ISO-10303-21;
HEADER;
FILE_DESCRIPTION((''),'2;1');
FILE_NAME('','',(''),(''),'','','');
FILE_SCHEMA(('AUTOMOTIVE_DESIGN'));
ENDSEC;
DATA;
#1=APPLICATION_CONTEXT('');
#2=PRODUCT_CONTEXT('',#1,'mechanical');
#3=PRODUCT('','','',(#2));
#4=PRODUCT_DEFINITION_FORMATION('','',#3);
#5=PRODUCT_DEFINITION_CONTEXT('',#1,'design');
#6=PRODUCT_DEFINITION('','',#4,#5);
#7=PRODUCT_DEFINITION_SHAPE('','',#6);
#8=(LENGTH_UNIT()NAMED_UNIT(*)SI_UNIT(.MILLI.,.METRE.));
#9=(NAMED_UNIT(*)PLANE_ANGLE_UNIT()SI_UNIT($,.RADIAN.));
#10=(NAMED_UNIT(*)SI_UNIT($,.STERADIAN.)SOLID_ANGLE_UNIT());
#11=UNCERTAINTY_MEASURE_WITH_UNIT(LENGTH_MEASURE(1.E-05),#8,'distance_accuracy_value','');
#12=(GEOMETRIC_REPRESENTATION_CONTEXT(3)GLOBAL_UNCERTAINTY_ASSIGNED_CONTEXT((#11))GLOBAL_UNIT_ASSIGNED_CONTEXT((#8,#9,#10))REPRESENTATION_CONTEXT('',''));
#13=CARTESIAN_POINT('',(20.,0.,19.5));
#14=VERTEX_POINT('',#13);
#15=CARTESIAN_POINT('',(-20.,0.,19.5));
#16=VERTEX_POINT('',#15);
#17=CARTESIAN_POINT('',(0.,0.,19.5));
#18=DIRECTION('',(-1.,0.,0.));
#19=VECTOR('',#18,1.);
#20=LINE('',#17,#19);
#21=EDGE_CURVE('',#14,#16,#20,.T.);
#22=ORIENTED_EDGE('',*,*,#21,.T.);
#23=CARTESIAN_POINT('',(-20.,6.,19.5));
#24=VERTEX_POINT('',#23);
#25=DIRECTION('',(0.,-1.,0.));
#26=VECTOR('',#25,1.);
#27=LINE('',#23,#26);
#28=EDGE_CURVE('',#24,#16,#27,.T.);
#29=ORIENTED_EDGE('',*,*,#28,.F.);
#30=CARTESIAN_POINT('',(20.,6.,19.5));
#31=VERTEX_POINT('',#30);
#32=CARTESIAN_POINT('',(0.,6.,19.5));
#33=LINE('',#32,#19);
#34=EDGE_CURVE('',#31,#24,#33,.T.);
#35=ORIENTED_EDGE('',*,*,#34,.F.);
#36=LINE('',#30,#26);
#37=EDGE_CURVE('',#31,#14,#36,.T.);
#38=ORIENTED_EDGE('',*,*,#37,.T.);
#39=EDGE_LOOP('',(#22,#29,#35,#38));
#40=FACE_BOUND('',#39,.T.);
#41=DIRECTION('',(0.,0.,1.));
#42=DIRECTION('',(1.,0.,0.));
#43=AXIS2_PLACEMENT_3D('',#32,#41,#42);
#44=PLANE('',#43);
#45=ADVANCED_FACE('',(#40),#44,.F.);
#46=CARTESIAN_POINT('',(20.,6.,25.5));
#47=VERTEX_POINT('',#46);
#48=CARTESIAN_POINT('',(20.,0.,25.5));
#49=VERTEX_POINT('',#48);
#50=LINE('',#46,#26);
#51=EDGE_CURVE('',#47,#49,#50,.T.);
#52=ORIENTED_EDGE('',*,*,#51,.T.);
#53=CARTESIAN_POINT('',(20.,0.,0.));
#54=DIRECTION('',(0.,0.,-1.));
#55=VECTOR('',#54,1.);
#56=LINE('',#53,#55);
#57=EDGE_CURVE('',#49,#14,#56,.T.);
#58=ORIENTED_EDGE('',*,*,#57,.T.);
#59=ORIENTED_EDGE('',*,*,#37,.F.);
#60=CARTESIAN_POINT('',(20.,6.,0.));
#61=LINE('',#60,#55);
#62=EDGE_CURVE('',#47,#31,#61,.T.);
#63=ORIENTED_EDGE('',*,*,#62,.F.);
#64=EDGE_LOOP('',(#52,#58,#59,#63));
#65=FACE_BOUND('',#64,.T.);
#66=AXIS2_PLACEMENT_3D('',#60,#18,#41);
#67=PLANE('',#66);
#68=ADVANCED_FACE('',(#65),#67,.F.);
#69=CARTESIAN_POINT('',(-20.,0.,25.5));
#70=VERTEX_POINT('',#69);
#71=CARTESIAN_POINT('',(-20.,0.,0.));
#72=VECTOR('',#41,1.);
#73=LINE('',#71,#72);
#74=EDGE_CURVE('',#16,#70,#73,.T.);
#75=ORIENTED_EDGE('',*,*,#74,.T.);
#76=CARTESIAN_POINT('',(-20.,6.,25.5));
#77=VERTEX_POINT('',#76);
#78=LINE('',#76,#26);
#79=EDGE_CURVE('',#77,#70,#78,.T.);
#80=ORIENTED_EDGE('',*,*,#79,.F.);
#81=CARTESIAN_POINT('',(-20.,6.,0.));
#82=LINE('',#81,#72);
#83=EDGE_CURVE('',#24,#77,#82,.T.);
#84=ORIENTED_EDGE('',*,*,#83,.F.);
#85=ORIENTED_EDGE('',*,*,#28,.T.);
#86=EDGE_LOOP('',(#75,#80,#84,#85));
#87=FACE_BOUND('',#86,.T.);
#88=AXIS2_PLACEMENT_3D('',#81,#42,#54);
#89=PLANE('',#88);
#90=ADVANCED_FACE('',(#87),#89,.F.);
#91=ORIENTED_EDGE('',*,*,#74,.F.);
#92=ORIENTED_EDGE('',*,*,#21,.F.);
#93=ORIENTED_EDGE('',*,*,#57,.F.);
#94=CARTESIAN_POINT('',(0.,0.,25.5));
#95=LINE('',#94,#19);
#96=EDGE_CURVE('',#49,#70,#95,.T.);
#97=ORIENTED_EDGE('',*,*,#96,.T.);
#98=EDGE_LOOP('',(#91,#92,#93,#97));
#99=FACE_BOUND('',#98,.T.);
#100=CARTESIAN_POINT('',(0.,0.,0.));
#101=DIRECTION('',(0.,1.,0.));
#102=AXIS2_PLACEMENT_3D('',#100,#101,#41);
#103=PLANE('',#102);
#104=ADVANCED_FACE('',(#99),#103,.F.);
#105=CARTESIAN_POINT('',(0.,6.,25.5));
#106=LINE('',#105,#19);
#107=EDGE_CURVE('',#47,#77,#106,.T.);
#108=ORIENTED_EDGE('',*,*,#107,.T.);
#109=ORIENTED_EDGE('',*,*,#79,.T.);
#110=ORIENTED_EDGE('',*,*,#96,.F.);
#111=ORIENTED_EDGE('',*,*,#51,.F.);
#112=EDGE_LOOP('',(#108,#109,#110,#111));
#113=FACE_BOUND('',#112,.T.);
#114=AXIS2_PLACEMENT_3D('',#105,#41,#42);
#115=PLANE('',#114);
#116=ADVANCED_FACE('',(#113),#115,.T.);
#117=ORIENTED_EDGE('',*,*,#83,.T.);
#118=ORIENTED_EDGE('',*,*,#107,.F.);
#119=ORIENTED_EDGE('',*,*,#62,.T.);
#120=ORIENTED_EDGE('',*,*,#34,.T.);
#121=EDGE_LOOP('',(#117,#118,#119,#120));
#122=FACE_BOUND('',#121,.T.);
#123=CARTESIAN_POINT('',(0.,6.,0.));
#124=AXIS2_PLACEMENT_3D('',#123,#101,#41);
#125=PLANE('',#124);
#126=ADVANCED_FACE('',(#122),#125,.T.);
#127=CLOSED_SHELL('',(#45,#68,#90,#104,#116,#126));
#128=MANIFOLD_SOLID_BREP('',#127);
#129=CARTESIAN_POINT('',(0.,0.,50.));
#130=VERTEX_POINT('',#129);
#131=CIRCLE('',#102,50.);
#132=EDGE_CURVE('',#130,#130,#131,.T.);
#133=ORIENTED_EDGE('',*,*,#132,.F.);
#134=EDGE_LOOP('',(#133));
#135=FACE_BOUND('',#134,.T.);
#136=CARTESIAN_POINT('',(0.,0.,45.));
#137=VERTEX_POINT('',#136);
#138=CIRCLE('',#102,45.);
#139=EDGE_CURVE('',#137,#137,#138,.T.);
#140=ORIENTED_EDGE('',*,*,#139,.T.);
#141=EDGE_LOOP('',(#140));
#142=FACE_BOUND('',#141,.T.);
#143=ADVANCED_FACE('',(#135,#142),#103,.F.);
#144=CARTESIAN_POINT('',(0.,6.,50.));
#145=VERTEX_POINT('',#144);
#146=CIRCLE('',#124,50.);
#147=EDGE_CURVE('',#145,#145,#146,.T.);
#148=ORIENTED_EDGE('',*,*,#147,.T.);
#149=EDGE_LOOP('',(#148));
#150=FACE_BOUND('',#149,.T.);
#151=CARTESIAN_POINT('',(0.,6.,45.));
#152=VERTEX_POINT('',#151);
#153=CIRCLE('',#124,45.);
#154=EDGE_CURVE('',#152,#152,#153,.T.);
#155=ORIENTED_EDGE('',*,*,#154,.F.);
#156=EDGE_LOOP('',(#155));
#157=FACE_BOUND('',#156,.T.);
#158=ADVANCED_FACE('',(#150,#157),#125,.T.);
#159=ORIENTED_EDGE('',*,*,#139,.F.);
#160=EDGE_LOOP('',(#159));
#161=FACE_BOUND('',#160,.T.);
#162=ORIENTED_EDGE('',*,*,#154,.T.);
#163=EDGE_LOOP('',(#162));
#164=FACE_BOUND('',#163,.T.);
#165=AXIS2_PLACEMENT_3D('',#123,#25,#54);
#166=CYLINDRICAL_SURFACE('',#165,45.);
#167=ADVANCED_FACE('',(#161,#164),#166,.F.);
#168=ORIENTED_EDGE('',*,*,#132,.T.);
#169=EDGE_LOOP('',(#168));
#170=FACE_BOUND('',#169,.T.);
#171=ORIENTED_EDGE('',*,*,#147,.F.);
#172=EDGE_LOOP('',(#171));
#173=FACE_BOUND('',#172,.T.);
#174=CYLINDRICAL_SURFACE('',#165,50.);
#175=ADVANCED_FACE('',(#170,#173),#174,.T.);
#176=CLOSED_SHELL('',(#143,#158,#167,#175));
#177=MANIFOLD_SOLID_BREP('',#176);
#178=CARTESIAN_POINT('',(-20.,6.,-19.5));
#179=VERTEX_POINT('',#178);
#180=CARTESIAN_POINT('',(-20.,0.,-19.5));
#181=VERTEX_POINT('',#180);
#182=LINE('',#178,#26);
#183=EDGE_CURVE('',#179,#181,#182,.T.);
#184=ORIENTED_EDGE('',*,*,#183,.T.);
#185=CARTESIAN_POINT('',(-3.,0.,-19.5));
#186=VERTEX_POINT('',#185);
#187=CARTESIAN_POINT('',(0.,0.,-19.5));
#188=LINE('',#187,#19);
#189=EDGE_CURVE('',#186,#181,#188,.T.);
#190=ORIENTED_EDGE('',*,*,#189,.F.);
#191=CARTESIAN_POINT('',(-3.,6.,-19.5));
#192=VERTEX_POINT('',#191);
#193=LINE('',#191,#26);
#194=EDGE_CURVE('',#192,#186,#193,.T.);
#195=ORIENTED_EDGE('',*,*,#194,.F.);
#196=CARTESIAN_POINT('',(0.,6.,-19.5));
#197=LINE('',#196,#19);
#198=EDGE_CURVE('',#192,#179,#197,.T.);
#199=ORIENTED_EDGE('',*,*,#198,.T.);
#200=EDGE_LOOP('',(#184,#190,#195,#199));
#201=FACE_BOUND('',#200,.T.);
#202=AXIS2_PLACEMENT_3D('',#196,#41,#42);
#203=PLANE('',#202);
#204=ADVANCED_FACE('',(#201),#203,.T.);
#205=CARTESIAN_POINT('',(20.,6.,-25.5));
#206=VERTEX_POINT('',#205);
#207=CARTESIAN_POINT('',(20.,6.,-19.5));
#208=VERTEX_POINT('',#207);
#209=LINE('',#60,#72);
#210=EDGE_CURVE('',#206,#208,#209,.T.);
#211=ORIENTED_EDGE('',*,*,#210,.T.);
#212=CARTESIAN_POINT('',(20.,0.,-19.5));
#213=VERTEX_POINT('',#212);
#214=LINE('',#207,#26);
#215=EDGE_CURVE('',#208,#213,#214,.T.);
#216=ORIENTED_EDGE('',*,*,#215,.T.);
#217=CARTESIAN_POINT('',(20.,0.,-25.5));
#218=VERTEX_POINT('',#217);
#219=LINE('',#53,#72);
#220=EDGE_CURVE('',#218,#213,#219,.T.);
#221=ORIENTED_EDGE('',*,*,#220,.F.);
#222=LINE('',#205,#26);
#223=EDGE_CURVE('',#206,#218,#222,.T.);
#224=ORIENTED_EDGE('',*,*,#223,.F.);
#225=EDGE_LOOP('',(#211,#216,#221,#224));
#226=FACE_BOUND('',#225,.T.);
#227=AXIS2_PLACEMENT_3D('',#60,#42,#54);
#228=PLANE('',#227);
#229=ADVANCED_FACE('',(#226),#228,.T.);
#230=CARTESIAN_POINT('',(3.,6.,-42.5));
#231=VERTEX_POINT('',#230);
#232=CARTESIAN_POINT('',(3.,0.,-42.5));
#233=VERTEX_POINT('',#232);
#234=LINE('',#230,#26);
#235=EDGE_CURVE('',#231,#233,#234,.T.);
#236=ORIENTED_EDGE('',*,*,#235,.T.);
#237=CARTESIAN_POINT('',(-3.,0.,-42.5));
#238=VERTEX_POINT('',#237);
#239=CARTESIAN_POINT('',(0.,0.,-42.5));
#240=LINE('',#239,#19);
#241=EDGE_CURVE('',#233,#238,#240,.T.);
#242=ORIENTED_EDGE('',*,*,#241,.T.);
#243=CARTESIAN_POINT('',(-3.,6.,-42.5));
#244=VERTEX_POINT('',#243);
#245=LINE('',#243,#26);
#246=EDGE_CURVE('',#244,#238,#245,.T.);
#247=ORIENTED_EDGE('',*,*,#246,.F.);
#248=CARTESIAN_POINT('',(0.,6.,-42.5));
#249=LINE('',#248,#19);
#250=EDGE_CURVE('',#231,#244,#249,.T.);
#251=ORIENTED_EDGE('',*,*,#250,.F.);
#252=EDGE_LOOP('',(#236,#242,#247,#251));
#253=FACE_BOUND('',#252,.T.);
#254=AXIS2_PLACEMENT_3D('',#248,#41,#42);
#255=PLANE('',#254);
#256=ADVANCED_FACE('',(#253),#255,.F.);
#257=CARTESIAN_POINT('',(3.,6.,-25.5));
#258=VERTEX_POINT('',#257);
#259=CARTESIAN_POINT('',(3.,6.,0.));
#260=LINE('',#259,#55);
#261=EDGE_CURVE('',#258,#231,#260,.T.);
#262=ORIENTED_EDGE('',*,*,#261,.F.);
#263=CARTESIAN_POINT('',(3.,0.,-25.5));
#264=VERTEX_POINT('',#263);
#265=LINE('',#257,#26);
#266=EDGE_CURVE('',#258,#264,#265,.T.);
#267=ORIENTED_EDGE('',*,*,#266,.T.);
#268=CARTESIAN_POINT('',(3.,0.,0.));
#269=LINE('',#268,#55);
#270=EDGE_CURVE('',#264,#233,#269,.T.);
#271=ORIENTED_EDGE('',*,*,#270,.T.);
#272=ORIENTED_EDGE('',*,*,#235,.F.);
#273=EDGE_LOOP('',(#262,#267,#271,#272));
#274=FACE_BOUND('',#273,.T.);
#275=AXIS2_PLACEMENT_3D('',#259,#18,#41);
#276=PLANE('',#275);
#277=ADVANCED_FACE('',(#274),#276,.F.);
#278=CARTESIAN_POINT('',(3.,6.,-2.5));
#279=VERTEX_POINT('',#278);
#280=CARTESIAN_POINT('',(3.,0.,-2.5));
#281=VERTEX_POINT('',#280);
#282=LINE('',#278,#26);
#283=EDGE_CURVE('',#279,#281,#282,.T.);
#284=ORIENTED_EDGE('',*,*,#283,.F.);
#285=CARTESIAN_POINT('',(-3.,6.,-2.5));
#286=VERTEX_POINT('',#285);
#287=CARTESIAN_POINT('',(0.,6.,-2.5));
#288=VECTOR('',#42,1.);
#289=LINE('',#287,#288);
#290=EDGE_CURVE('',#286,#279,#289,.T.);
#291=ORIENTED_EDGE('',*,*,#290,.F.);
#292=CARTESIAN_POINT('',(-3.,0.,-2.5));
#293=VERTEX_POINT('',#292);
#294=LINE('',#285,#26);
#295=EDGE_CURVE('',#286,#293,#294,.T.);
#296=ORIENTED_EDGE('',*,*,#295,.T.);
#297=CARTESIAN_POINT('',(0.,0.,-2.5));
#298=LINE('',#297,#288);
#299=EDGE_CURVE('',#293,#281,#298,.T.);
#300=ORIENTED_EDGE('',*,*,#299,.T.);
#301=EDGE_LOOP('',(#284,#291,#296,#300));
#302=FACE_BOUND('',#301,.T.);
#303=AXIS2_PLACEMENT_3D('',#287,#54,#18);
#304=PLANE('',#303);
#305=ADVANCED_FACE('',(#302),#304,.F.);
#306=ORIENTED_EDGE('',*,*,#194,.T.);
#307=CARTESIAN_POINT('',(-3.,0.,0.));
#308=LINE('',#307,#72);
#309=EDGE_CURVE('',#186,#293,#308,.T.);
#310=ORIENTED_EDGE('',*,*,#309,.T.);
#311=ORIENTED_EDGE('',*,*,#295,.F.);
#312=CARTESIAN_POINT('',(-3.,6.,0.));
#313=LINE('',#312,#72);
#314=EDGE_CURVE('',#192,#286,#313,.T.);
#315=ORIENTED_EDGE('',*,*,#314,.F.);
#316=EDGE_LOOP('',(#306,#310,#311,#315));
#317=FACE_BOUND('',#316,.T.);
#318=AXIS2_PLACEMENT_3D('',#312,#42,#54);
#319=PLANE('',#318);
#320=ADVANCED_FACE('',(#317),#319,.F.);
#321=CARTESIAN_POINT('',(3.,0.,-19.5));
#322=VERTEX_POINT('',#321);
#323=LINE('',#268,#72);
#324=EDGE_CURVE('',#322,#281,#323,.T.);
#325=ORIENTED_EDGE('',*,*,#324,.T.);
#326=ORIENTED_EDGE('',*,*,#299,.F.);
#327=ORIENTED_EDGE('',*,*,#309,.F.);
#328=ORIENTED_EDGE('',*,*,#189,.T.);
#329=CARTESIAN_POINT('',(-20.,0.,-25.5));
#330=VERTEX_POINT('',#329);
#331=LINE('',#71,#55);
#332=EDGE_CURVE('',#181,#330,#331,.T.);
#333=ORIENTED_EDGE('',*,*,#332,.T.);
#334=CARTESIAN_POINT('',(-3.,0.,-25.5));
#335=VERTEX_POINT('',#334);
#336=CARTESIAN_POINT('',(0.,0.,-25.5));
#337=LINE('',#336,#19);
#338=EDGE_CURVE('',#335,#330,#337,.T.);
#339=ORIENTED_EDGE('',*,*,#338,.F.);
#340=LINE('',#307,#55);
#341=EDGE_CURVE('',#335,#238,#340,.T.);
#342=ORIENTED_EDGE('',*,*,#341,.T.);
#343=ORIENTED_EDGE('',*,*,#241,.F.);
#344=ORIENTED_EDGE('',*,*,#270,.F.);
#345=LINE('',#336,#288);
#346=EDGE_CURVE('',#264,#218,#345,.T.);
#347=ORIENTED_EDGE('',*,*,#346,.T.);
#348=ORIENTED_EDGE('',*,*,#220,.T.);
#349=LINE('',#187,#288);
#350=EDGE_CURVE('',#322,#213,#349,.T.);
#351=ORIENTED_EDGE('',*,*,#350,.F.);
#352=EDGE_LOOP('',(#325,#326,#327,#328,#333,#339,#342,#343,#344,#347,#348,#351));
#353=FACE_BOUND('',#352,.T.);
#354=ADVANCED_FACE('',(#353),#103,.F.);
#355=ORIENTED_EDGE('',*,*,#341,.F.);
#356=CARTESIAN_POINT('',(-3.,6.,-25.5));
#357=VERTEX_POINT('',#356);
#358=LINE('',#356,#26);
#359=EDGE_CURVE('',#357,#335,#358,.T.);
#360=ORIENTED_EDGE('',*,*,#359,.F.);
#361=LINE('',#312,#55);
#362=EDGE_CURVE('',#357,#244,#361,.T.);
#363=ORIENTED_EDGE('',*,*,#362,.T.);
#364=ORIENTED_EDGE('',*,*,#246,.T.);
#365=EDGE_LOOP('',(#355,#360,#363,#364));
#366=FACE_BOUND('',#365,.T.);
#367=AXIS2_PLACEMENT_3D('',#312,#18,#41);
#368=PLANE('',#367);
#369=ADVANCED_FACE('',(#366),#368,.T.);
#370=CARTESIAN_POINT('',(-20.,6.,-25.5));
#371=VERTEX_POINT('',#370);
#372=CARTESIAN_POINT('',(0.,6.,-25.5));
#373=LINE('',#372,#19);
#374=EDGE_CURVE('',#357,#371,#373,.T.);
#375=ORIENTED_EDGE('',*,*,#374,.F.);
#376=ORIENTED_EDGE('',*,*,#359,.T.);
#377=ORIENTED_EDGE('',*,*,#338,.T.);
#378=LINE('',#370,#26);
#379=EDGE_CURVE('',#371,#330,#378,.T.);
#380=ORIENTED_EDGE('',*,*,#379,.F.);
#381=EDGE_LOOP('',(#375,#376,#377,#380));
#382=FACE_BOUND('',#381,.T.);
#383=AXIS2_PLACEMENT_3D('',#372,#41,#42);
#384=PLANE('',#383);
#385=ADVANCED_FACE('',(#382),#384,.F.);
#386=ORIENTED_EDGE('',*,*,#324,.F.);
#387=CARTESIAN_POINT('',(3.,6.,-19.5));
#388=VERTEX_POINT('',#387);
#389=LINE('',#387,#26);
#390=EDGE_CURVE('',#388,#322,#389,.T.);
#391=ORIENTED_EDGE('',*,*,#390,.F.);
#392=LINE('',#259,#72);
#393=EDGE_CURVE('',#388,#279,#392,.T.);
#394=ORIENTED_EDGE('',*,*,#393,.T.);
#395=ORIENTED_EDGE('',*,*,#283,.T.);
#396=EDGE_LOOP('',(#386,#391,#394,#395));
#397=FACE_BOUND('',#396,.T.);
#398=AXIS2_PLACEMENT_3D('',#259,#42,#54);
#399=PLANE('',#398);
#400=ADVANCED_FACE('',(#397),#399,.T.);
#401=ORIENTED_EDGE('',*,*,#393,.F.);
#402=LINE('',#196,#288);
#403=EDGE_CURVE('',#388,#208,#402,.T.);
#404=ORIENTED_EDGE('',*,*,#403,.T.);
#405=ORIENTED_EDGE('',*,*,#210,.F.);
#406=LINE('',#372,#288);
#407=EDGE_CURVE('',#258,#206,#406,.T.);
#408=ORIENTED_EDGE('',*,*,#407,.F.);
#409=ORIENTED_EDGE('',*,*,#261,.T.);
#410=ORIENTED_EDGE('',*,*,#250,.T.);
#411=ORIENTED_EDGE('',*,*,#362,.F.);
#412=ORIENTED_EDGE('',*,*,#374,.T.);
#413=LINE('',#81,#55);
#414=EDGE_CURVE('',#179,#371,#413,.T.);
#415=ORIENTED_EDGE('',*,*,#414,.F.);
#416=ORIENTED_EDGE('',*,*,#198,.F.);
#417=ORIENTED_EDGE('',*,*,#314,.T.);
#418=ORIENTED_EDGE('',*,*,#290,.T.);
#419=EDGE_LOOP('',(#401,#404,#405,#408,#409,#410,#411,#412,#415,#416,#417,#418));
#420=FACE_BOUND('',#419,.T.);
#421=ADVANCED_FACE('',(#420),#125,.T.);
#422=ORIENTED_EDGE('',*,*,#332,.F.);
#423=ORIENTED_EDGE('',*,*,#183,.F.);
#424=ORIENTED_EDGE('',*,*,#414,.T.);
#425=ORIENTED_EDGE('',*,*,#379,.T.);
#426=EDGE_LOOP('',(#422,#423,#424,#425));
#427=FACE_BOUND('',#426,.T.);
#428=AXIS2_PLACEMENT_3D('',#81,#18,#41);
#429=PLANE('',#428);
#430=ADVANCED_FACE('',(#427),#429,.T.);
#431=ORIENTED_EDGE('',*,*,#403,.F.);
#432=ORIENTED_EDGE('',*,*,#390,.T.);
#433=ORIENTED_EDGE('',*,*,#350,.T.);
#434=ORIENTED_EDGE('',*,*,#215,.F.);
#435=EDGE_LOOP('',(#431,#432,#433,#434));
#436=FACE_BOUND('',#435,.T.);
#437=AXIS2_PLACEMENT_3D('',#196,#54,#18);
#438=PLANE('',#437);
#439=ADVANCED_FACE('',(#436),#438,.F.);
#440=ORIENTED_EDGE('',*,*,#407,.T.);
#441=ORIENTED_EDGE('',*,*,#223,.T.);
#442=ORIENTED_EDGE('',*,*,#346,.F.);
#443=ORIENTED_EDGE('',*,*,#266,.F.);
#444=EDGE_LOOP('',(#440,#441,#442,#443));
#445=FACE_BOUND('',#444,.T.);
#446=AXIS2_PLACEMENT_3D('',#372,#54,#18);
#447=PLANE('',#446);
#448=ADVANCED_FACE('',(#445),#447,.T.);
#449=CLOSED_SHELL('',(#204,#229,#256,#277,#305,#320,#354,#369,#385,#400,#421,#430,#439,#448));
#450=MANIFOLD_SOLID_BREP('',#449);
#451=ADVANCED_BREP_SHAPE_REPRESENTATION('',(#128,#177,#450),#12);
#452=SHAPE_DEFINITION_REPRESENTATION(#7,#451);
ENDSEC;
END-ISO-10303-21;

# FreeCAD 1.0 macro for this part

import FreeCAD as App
import Part
import Sketcher

V = App.Vector
Q = App.Units.Quantity


def add_polygon(sketch, points):
    """Adds a closed chain of lines whose ends are joined by coincident constraints."""
    first, n = sketch.GeometryCount, len(points)
    for a, b in zip(points, points[1:] + points[:1]):
        sketch.addGeometry(Part.LineSegment(App.Vector(*a, 0), App.Vector(*b, 0)), False)
    for i in range(n):
        sketch.addConstraint(Sketcher.Constraint("Coincident", first + i, 2, first + (i + 1) % n, 1))

doc = App.newDocument("Part")
body = doc.addObject("PartDesign::Body", "Body")
body.AllowCompound = True

# Sketch on XZ plane
sketch1 = body.newObject("Sketcher::SketchObject", "Sketch")
sketch1.AttachmentSupport = (doc.getObject("XZ_Plane"), [""])
sketch1.MapMode = "FlatFace"
sketch1.addGeometry(Part.Circle(V(0, 0, 0), V(0, 0, 1), 50), False)  # 0
sketch1.addGeometry(Part.Circle(V(0, 0, 0), V(0, 0, 1), 45), False)  # 1
add_polygon(sketch1, [(20, 20), (-20, 20), (-20, 26), (20, 26)])  # lines 2-5
add_polygon(sketch1, [(20, -26), (3, -26), (3, -42), (-3, -42), (-3, -26), (-20, -26), (-20, -20), (-3, -20), (-3, -2), (3, -2), (3, -20), (20, -20)])  # lines 6-17
sketch1.addConstraint(Sketcher.Constraint("Horizontal", 2))
sketch1.addConstraint(Sketcher.Constraint("Vertical", 3))
sketch1.addConstraint(Sketcher.Constraint("Horizontal", 4))
sketch1.addConstraint(Sketcher.Constraint("Vertical", 5))
sketch1.addConstraint(Sketcher.Constraint("Horizontal", 6))
sketch1.addConstraint(Sketcher.Constraint("Vertical", 7))
sketch1.addConstraint(Sketcher.Constraint("Horizontal", 8))
sketch1.addConstraint(Sketcher.Constraint("Vertical", 9))
sketch1.addConstraint(Sketcher.Constraint("Horizontal", 10))
sketch1.addConstraint(Sketcher.Constraint("Vertical", 11))
sketch1.addConstraint(Sketcher.Constraint("Horizontal", 12))
sketch1.addConstraint(Sketcher.Constraint("Vertical", 13))
sketch1.addConstraint(Sketcher.Constraint("Horizontal", 14))
sketch1.addConstraint(Sketcher.Constraint("Vertical", 15))
sketch1.addConstraint(Sketcher.Constraint("Horizontal", 16))
sketch1.addConstraint(Sketcher.Constraint("Vertical", 17))
sketch1.addConstraint(Sketcher.Constraint("Coincident", 0, 3, -1, 1))
sketch1.addConstraint(Sketcher.Constraint("Coincident", 1, 3, -1, 1))
sketch1.addConstraint(Sketcher.Constraint("Symmetric", 4, 2, 10, 2, -1, 1))
sketch1.addConstraint(Sketcher.Constraint("Symmetric", 2, 2, 16, 2, -1, 1))
sketch1.addConstraint(Sketcher.Constraint("Symmetric", 6, 2, 9, 2, -2))
sketch1.addConstraint(Sketcher.Constraint("Symmetric", 12, 2, 15, 2, -2))
sketch1.addConstraint(Sketcher.Constraint("Vertical", 3, 2, 10, 2))
sketch1.addConstraint(Sketcher.Constraint("Vertical", 9, 2, 12, 2))
sketch1.addConstraint(Sketcher.Constraint("Equal", 14, 3))
sketch1.addConstraint(Sketcher.Constraint("Equal", 16, 7))
sketch1.addConstraint(Sketcher.Constraint("Equal", 9, 13))
sketch1.addConstraint(Sketcher.Constraint("Diameter", 0, Q("100 mm")))
sketch1.addConstraint(Sketcher.Constraint("Diameter", 1, Q("90 mm")))
sketch1.addConstraint(Sketcher.Constraint("DistanceX", 2, 2, 2, 1, Q("40 mm")))
sketch1.addConstraint(Sketcher.Constraint("DistanceX", 6, 2, 6, 1, Q("17 mm")))
sketch1.addConstraint(Sketcher.Constraint("DistanceY", 6, 2, 5, 2, Q("45 mm")))
pad1 = body.newObject("PartDesign::Pad", "Pad")
pad1.Profile = sketch1
pad1.Length = 6
pad1.Reversed = True

doc.recompute()
